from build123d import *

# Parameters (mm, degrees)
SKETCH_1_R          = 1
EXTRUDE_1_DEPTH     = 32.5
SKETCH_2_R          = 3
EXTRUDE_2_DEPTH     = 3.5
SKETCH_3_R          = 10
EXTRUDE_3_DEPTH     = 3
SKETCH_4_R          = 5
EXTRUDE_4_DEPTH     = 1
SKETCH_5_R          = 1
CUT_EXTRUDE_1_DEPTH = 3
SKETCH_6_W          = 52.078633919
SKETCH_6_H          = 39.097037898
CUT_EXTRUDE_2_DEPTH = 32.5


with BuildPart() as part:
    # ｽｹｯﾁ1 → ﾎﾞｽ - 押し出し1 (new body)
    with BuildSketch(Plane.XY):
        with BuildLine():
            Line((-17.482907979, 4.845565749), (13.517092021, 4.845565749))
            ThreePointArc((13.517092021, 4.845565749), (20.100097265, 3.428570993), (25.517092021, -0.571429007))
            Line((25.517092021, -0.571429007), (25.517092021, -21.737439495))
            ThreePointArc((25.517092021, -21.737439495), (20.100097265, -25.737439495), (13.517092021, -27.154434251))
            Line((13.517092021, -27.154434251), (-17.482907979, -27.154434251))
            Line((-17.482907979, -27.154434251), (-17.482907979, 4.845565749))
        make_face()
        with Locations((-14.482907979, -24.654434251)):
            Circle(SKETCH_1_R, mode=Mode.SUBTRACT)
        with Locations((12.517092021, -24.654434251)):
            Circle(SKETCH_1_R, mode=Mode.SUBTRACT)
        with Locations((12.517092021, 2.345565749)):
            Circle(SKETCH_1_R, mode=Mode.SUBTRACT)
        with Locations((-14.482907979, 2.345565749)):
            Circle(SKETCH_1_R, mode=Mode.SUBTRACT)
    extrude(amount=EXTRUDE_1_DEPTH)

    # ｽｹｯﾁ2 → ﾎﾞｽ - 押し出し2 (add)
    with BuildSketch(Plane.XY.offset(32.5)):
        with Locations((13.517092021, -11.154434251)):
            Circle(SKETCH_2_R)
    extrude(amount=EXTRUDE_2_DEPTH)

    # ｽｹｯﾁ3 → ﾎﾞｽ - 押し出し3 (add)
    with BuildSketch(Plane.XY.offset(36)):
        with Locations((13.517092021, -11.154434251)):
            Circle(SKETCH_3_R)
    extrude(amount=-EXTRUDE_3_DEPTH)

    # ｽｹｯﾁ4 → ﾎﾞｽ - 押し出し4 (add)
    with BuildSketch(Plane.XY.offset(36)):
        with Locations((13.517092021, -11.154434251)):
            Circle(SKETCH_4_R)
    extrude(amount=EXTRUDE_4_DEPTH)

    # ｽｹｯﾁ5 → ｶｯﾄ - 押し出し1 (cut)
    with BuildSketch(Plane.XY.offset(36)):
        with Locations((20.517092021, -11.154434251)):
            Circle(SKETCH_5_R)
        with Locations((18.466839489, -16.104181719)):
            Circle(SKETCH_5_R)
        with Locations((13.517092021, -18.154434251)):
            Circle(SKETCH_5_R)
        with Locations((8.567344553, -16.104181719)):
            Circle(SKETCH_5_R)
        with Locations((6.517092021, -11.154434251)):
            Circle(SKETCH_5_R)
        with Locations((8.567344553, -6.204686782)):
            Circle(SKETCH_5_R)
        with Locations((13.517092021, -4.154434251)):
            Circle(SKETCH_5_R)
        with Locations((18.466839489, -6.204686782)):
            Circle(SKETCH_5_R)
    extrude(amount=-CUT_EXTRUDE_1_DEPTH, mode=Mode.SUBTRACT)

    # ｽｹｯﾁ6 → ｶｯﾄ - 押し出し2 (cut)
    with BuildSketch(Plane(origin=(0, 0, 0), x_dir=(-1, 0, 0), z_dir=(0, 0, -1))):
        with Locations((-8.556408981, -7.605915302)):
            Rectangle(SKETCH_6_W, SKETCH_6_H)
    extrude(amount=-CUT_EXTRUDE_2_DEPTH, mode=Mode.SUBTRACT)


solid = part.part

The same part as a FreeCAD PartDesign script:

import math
import FreeCAD as App
import Part
import Sketcher
from FreeCAD import Vector

doc = App.newDocument("Part")
body = doc.addObject("PartDesign::Body", "Body")

# Sketch on XY plane
sketch1 = body.newObject("Sketcher::SketchObject", "Sketch")
sketch1.AttachmentSupport = (doc.getObject("XY_Plane"), [""])
sketch1.MapMode = "FlatFace"
sketch1.addGeometry([
    Part.LineSegment(Vector(13.5, 4.8, 0), Vector(-17.5, 4.8, 0)),  # 0
    Part.LineSegment(Vector(-17.5, 4.8, 0), Vector(-17.5, -27.2, 0)),  # 1
    Part.LineSegment(Vector(-17.5, -27.2, 0), Vector(13.5, -27.2, 0)),  # 2
    Part.ArcOfCircle(Part.Circle(Vector(13.5, -11.2, 0), Vector(0, 0, 1), 16), math.radians(-90), math.radians(-41)),  # 3
    Part.LineSegment(Vector(25.5, -21.7, 0), Vector(25.5, -0.6, 0)),  # 4
    Part.ArcOfCircle(Part.Circle(Vector(13.5, -11.2, 0), Vector(0, 0, 1), 16), math.radians(41), math.radians(90)),  # 5
    Part.Circle(Vector(12.5, -24.7, 0), Vector(0, 0, 1), 1),  # 6
    Part.Circle(Vector(-14.5, -24.7, 0), Vector(0, 0, 1), 1),  # 7
    Part.Circle(Vector(12.5, 2.3, 0), Vector(0, 0, 1), 1),  # 8
    Part.Circle(Vector(-14.5, 2.3, 0), Vector(0, 0, 1), 1),  # 9
], False)
sketch1.addConstraint([
    Sketcher.Constraint("Coincident", 0, 2, 1, 1),
    Sketcher.Constraint("Coincident", 1, 2, 2, 1),
    Sketcher.Constraint("Tangent", 2, 2, 3, 1),
    Sketcher.Constraint("Coincident", 3, 2, 4, 1),
    Sketcher.Constraint("Coincident", 4, 2, 5, 1),
    Sketcher.Constraint("Tangent", 5, 2, 0, 1),
    Sketcher.Constraint("Horizontal", 0),
    Sketcher.Constraint("Vertical", 1),
    Sketcher.Constraint("Horizontal", 2),
    Sketcher.Constraint("Vertical", 4),
    Sketcher.Constraint("Coincident", 5, 3, 3, 3),
    Sketcher.Constraint("Equal", 3, 5),
    Sketcher.Constraint("Equal", 6, 7),
    Sketcher.Constraint("Equal", 7, 8),
    Sketcher.Constraint("Equal", 8, 9),
    Sketcher.Constraint("Horizontal", 6, 3, 7, 3),
    Sketcher.Constraint("Horizontal", 8, 3, 9, 3),
    Sketcher.Constraint("Vertical", 6, 3, 8, 3),
    Sketcher.Constraint("Vertical", 7, 3, 9, 3),
    Sketcher.Constraint("Diameter", 6, 2.0),
    Sketcher.Constraint("Radius", 3, 16.0),
    Sketcher.Constraint("DistanceX", 0, 2, 0, 1, 31.0),
    Sketcher.Constraint("DistanceX", 6, 3, 5, 3, 1.0),
    Sketcher.Constraint("DistanceX", 7, 3, 6, 3, 27.0),
    Sketcher.Constraint("DistanceY", 6, 3, 8, 3, 27.0),
    Sketcher.Constraint("DistanceX", 2, 2, 3, 2, 12.0),
    Sketcher.Constraint("DistanceY", 6, 3, 5, 3, 13.5),
    Sketcher.Constraint("DistanceY", 3, 2, -1, 1, 21.737439),
    Sketcher.Constraint("DistanceX", -1, 1, 3, 3, 13.517092),
])
pad1 = body.newObject("PartDesign::Pad", "Pad")
pad1.Profile = sketch1
pad1.Length = 32.5

# Sketch on XY plane
sketch2 = body.newObject("Sketcher::SketchObject", "Sketch001")
sketch2.AttachmentSupport = (doc.getObject("XY_Plane"), [""])
sketch2.MapMode = "FlatFace"
sketch2.AttachmentOffset = App.Placement(Vector(0, 0, 32.5), App.Rotation())
sketch2.addGeometry(Part.Circle(Vector(13.5, -11.2, 0), Vector(0, 0, 1), 3), False)
sketch2.addConstraint([
    Sketcher.Constraint("Diameter", 0, 6.0),
    Sketcher.Constraint("DistanceX", -1, 1, 0, 3, 13.517092),
    Sketcher.Constraint("DistanceY", 0, 3, -1, 1, 11.154434),
])
pad2 = body.newObject("PartDesign::Pad", "Pad001")
pad2.Profile = sketch2
pad2.Length = 3.5

# Sketch on XY plane
sketch3 = body.newObject("Sketcher::SketchObject", "Sketch002")
sketch3.AttachmentSupport = (doc.getObject("XY_Plane"), [""])
sketch3.MapMode = "FlatFace"
sketch3.AttachmentOffset = App.Placement(Vector(0, 0, 36), App.Rotation())
sketch3.addGeometry(Part.Circle(Vector(14, -11, 0), Vector(0, 0, 1), 10), False)
sketch3.addConstraint([
    Sketcher.Constraint("Diameter", 0, 20.0),
    Sketcher.Constraint("DistanceX", -1, 1, 0, 3, 13.517092),
    Sketcher.Constraint("DistanceY", 0, 3, -1, 1, 11.154434),
])
pad3 = body.newObject("PartDesign::Pad", "Pad002")
pad3.Profile = sketch3
pad3.Length = 3
pad3.Reversed = True

# Sketch on XY plane
sketch4 = body.newObject("Sketcher::SketchObject", "Sketch003")
sketch4.AttachmentSupport = (doc.getObject("XY_Plane"), [""])
sketch4.MapMode = "FlatFace"
sketch4.AttachmentOffset = App.Placement(Vector(0, 0, 36), App.Rotation())
sketch4.addGeometry(Part.Circle(Vector(14, -11, 0), Vector(0, 0, 1), 5), False)
sketch4.addConstraint([
    Sketcher.Constraint("Diameter", 0, 10.0),
    Sketcher.Constraint("DistanceX", -1, 1, 0, 3, 13.517092),
    Sketcher.Constraint("DistanceY", 0, 3, -1, 1, 11.154434),
])
pad4 = body.newObject("PartDesign::Pad", "Pad003")
pad4.Profile = sketch4
pad4.Length = 1

# Sketch on XY plane
sketch5 = body.newObject("Sketcher::SketchObject", "Sketch004")
sketch5.AttachmentSupport = (doc.getObject("XY_Plane"), [""])
sketch5.MapMode = "FlatFace"
sketch5.AttachmentOffset = App.Placement(Vector(0, 0, 36), App.Rotation())
sketch5.addGeometry([
    Part.Circle(Vector(20.5, -11.2, 0), Vector(0, 0, 1), 1),  # 0
    Part.Circle(Vector(18.5, -16.1, 0), Vector(0, 0, 1), 1),  # 1
    Part.Circle(Vector(13.5, -18.2, 0), Vector(0, 0, 1), 1),  # 2
    Part.Circle(Vector(8.6, -16.1, 0), Vector(0, 0, 1), 1),  # 3
    Part.Circle(Vector(6.5, -11.2, 0), Vector(0, 0, 1), 1),  # 4
    Part.Circle(Vector(8.6, -6.2, 0), Vector(0, 0, 1), 1),  # 5
    Part.Circle(Vector(13.5, -4.2, 0), Vector(0, 0, 1), 1),  # 6
    Part.Circle(Vector(18.5, -6.2, 0), Vector(0, 0, 1), 1),  # 7
], False)
sketch5.addConstraint([
    Sketcher.Constraint("Equal", 0, 1),
    Sketcher.Constraint("Equal", 1, 2),
    Sketcher.Constraint("Equal", 2, 3),
    Sketcher.Constraint("Equal", 3, 4),
    Sketcher.Constraint("Equal", 4, 5),
    Sketcher.Constraint("Equal", 5, 6),
    Sketcher.Constraint("Equal", 6, 7),
    Sketcher.Constraint("Horizontal", 1, 3, 3, 3),
    Sketcher.Constraint("Horizontal", 0, 3, 4, 3),
    Sketcher.Constraint("Horizontal", 5, 3, 7, 3),
    Sketcher.Constraint("Vertical", 3, 3, 5, 3),
    Sketcher.Constraint("Vertical", 2, 3, 6, 3),
    Sketcher.Constraint("Vertical", 1, 3, 7, 3),
    Sketcher.Constraint("Diameter", 0, 2.0),
    Sketcher.Constraint("DistanceX", 2, 3, 0, 3, 7.0),
    Sketcher.Constraint("DistanceY", 2, 3, 0, 3, 7.0),
    Sketcher.Constraint("DistanceX", 4, 3, 2, 3, 7.0),
    Sketcher.Constraint("DistanceY", 0, 3, 6, 3, 7.0),
    Sketcher.Constraint("DistanceX", -1, 1, 1, 3, 18.466839),
    Sketcher.Constraint("DistanceY", 1, 3, -1, 1, 16.104182),
    Sketcher.Constraint("DistanceX", -1, 1, 0, 3, 20.517092),
    Sketcher.Constraint("DistanceY", 0, 3, -1, 1, 11.154434),
    Sketcher.Constraint("DistanceX", -1, 1, 3, 3, 8.567345),
    Sketcher.Constraint("DistanceY", 5, 3, -1, 1, 6.204687),
])
pocket1 = body.newObject("PartDesign::Pocket", "Pocket")
pocket1.Profile = sketch5
pocket1.Length = 3

# Sketch on XY plane
sketch6 = body.newObject("Sketcher::SketchObject", "Sketch005")
sketch6.AttachmentSupport = (doc.getObject("XY_Plane"), [""])
sketch6.MapMode = "FlatFace"
sketch6.addGeometry([
    Part.LineSegment(Vector(35, 12, 0), Vector(35, -27, 0)),
    Part.LineSegment(Vector(35, -27, 0), Vector(-17, -27, 0)),
    Part.LineSegment(Vector(-17, -27, 0), Vector(-17, 12, 0)),
    Part.LineSegment(Vector(-17, 12, 0), Vector(35, 12, 0)),
], False)
sketch6.addConstraint([
    Sketcher.Constraint("Coincident", 0, 2, 1, 1),
    Sketcher.Constraint("Coincident", 1, 2, 2, 1),
    Sketcher.Constraint("Coincident", 2, 2, 3, 1),
    Sketcher.Constraint("Coincident", 3, 2, 0, 1),
    Sketcher.Constraint("Vertical", 0),
    Sketcher.Constraint("Horizontal", 1),
    Sketcher.Constraint("Vertical", 2),
    Sketcher.Constraint("Horizontal", 3),
    Sketcher.Constraint("DistanceX", 1, 2, 1, 1, 52.078634),
    Sketcher.Constraint("DistanceY", 0, 2, 0, 1, 39.097038),
    Sketcher.Constraint("DistanceX", -1, 1, 0, 2, 34.595726),
    Sketcher.Constraint("DistanceY", 0, 2, -1, 1, 27.154434),
])
pocket2 = body.newObject("PartDesign::Pocket", "Pocket001")
pocket2.Profile = sketch6
pocket2.Length = 32.5
pocket2.Reversed = True

doc.recompute()
